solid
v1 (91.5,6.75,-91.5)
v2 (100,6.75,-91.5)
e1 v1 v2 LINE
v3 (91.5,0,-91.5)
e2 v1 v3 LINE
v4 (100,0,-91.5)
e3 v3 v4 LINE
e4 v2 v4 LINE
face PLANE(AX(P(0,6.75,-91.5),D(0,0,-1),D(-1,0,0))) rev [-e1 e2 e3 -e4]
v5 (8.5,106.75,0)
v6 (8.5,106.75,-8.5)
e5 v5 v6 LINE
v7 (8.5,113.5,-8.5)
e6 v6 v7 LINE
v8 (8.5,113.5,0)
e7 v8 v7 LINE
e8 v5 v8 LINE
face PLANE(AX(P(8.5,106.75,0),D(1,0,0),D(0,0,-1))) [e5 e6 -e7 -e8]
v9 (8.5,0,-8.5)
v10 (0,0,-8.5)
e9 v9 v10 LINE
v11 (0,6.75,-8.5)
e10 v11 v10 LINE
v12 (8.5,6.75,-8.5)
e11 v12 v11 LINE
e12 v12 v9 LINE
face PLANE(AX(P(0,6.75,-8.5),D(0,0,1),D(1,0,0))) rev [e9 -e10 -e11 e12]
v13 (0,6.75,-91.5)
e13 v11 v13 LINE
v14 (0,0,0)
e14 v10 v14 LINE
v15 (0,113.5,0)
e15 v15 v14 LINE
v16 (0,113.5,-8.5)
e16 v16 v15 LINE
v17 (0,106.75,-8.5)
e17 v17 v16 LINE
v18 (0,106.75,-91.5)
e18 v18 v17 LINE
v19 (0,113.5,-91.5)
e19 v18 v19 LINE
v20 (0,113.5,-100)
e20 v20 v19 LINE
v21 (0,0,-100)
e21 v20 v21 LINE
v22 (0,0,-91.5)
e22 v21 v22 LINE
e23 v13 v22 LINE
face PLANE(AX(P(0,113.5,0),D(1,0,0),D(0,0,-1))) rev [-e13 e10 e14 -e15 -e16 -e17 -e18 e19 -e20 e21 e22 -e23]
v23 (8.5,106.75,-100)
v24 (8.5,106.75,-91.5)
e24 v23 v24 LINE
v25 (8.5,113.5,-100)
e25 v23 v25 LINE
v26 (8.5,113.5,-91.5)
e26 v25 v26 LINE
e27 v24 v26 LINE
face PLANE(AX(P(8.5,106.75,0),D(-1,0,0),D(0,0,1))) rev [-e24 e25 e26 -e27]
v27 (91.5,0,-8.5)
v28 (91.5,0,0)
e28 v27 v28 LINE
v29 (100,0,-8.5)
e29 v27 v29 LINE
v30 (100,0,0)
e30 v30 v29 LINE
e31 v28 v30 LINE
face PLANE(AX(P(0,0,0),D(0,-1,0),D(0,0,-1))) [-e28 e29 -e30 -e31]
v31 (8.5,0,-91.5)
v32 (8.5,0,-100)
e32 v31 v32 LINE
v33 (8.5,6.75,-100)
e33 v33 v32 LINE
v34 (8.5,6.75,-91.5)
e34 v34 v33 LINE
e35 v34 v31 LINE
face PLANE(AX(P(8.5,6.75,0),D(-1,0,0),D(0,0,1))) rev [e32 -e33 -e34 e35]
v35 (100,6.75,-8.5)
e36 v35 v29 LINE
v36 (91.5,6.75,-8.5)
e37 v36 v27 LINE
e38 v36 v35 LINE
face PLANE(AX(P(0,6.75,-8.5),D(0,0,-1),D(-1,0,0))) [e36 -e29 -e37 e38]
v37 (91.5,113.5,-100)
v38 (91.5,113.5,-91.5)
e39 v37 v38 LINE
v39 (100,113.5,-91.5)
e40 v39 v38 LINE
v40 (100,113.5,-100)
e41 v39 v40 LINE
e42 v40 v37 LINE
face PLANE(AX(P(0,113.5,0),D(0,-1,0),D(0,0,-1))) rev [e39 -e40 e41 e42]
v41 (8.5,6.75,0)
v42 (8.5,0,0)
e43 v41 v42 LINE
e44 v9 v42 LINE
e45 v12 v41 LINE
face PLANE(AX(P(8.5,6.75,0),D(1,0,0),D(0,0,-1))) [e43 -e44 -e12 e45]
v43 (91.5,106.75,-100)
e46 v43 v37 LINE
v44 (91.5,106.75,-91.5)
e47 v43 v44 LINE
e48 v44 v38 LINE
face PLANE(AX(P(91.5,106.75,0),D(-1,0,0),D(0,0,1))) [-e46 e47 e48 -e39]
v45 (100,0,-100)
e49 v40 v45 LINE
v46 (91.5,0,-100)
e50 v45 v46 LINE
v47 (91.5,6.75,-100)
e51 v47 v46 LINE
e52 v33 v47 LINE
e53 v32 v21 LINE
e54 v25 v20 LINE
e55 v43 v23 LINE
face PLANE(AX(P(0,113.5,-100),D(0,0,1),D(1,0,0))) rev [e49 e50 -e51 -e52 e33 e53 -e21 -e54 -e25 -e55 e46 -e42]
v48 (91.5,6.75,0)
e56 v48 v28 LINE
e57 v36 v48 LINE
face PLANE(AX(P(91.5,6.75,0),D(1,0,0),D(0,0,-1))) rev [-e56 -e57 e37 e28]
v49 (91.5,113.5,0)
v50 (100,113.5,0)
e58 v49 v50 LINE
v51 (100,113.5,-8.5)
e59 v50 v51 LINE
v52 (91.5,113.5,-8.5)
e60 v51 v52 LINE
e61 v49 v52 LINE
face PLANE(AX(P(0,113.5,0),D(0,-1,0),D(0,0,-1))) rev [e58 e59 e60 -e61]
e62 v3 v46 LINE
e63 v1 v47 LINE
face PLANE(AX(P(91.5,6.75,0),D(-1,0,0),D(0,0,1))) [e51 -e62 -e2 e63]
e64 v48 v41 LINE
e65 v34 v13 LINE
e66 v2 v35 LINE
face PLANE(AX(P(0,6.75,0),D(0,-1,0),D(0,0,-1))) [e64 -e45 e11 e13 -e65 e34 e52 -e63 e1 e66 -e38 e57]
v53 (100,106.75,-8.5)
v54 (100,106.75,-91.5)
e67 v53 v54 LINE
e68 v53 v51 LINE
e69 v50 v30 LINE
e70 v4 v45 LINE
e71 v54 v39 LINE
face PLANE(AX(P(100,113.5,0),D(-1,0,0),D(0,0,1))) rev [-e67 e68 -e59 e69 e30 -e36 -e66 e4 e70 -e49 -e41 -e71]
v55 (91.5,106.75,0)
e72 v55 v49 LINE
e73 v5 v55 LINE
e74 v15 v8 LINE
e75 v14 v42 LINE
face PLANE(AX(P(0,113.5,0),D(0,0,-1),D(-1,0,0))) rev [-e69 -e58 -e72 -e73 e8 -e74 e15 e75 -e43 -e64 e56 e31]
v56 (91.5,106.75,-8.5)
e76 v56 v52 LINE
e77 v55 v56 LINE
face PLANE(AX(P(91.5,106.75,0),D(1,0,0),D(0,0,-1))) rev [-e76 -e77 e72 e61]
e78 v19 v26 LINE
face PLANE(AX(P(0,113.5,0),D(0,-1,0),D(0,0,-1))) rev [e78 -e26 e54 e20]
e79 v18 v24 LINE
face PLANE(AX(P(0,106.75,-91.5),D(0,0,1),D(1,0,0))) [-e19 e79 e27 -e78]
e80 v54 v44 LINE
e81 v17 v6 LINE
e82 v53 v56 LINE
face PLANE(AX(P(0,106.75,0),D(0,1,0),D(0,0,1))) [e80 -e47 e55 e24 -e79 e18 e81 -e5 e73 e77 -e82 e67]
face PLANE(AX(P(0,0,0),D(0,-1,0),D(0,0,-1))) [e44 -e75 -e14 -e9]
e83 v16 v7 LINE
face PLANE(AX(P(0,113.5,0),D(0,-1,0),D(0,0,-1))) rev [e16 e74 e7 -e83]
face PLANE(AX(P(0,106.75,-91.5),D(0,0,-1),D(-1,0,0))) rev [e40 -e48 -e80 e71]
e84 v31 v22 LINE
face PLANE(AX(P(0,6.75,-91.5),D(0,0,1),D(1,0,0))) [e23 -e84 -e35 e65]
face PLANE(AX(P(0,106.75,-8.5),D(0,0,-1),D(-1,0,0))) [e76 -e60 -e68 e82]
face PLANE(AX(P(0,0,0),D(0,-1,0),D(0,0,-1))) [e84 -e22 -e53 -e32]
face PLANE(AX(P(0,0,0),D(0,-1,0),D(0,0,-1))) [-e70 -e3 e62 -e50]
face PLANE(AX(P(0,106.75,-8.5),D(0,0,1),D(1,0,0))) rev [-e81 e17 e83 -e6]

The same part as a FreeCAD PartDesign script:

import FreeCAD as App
import Part
import Sketcher
from FreeCAD import Vector
Q = App.Units.Quantity


def add_polygon(sketch, points):
    """Adds a closed chain of lines whose ends are joined by coincident constraints."""
    first, n = sketch.GeometryCount, len(points)
    for a, b in zip(points, points[1:] + points[:1]):
        sketch.addGeometry(Part.LineSegment(App.Vector(*a, 0), App.Vector(*b, 0)), False)
    for i in range(n):
        sketch.addConstraint(Sketcher.Constraint("Coincident", first + i, 2, first + (i + 1) % n, 1))

doc = App.newDocument("Part")
body = doc.addObject("PartDesign::Body", "Body")

# Sketch on XZ plane
sketch1 = doc.addObject("Sketcher::SketchObject", "Sketch")
body.addObject(sketch1)
sketch1.AttachmentSupport = (doc.XZ_Plane, [""])
sketch1.MapMode = "FlatFace"
add_polygon(sketch1, [(0, -100), (0, 0), (100, 0), (100, -100)])  # lines 0-3
sketch1.addConstraint(Sketcher.Constraint("Vertical", 0))
sketch1.addConstraint(Sketcher.Constraint("Horizontal", 1))
sketch1.addConstraint(Sketcher.Constraint("Vertical", 2))
sketch1.addConstraint(Sketcher.Constraint("Horizontal", 3))
sketch1.addConstraint(Sketcher.Constraint("Coincident", 0, 2, -1, 1))
sketch1.addConstraint(Sketcher.Constraint("Equal", 3, 0))
sketch1.addConstraint(Sketcher.Constraint("DistanceX", 1, 1, 1, 2, Q("100 mm")))
pad1 = doc.addObject("PartDesign::Pad", "Pad")
body.addObject(pad1)
pad1.Profile = sketch1
pad1.Length = 113.5
pad1.Reversed = True

# Sketch on XZ plane
sketch2 = doc.addObject("Sketcher::SketchObject", "Sketch001")
body.addObject(sketch2)
sketch2.AttachmentSupport = (doc.XZ_Plane, [""])
sketch2.MapMode = "FlatFace"
sketch2.AttachmentOffset = App.Placement(Vector(0, 0, -113.5), App.Rotation())
add_polygon(sketch2, [(91.5, -100), (8.5, -100), (8.5, -91.5), (0, -91.5), (0, -8.5), (8.5, -8.5), (8.5, 0), (91.5, 0), (91.5, -8.5), (100, -8.5), (100, -91.5), (91.5, -91.5)])  # lines 0-11
sketch2.addConstraint(Sketcher.Constraint("Horizontal", 0))
sketch2.addConstraint(Sketcher.Constraint("Vertical", 1))
sketch2.addConstraint(Sketcher.Constraint("Horizontal", 2))
sketch2.addConstraint(Sketcher.Constraint("Vertical", 3))
sketch2.addConstraint(Sketcher.Constraint("Horizontal", 4))
sketch2.addConstraint(Sketcher.Constraint("Vertical", 5))
sketch2.addConstraint(Sketcher.Constraint("Horizontal", 6))
sketch2.addConstraint(Sketcher.Constraint("Vertical", 7))
sketch2.addConstraint(Sketcher.Constraint("Horizontal", 8))
sketch2.addConstraint(Sketcher.Constraint("Vertical", 9))
sketch2.addConstraint(Sketcher.Constraint("Horizontal", 10))
sketch2.addConstraint(Sketcher.Constraint("Vertical", 11))
sketch2.addConstraint(Sketcher.Constraint("PointOnObject", 2, 2, -2))
sketch2.addConstraint(Sketcher.Constraint("PointOnObject", 5, 2, -1))
sketch2.addConstraint(Sketcher.Constraint("Horizontal", 4, 2, 7, 2))
sketch2.addConstraint(Sketcher.Constraint("Horizontal", 2, 2, 9, 2))
sketch2.addConstraint(Sketcher.Constraint("Vertical", 1, 2, 4, 2))
sketch2.addConstraint(Sketcher.Constraint("Vertical", 7, 2, 10, 2))
sketch2.addConstraint(Sketcher.Constraint("Equal", 4, 8))
sketch2.addConstraint(Sketcher.Constraint("Equal", 10, 1))
sketch2.addConstraint(Sketcher.Constraint("Equal", 6, 3))
sketch2.addConstraint(Sketcher.Constraint("Equal", 1, 5))
sketch2.addConstraint(Sketcher.Constraint("DistanceX", 0, 2, 0, 1, Q("83 mm")))
sketch2.addConstraint(Sketcher.Constraint("DistanceX", 2, 2, 2, 1, Q("8.5 mm")))
pocket1 = doc.addObject("PartDesign::Pocket", "Pocket")
body.addObject(pocket1)
pocket1.Profile = sketch2
pocket1.Length = 6.75
pocket1.Reversed = True

# Sketch on XZ plane
sketch3 = doc.addObject("Sketcher::SketchObject", "Sketch002")
body.addObject(sketch3)
sketch3.AttachmentSupport = (doc.XZ_Plane, [""])
sketch3.MapMode = "FlatFace"
add_polygon(sketch3, [(91.5, -100), (8.5, -100), (8.5, -91.5), (0, -91.5), (0, -8.5), (8.5, -8.5), (8.5, 0), (91.5, 0), (91.5, -8.5), (100, -8.5), (100, -91.5), (91.5, -91.5)])  # lines 0-11
sketch3.addConstraint(Sketcher.Constraint("Horizontal", 0))
sketch3.addConstraint(Sketcher.Constraint("Vertical", 1))
sketch3.addConstraint(Sketcher.Constraint("Horizontal", 2))
sketch3.addConstraint(Sketcher.Constraint("Vertical", 3))
sketch3.addConstraint(Sketcher.Constraint("Horizontal", 4))
sketch3.addConstraint(Sketcher.Constraint("Vertical", 5))
sketch3.addConstraint(Sketcher.Constraint("Horizontal", 6))
sketch3.addConstraint(Sketcher.Constraint("Vertical", 7))
sketch3.addConstraint(Sketcher.Constraint("Horizontal", 8))
sketch3.addConstraint(Sketcher.Constraint("Vertical", 9))
sketch3.addConstraint(Sketcher.Constraint("Horizontal", 10))
sketch3.addConstraint(Sketcher.Constraint("Vertical", 11))
sketch3.addConstraint(Sketcher.Constraint("PointOnObject", 2, 2, -2))
sketch3.addConstraint(Sketcher.Constraint("PointOnObject", 5, 2, -1))
sketch3.addConstraint(Sketcher.Constraint("Horizontal", 4, 2, 7, 2))
sketch3.addConstraint(Sketcher.Constraint("Horizontal", 2, 2, 9, 2))
sketch3.addConstraint(Sketcher.Constraint("Vertical", 1, 2, 4, 2))
sketch3.addConstraint(Sketcher.Constraint("Vertical", 7, 2, 10, 2))
sketch3.addConstraint(Sketcher.Constraint("Equal", 4, 8))
sketch3.addConstraint(Sketcher.Constraint("Equal", 10, 1))
sketch3.addConstraint(Sketcher.Constraint("Equal", 6, 3))
sketch3.addConstraint(Sketcher.Constraint("Equal", 1, 5))
sketch3.addConstraint(Sketcher.Constraint("DistanceX", 0, 2, 0, 1, Q("83 mm")))
sketch3.addConstraint(Sketcher.Constraint("DistanceX", 2, 2, 2, 1, Q("8.5 mm")))
pocket2 = doc.addObject("PartDesign::Pocket", "Pocket001")
body.addObject(pocket2)
pocket2.Profile = sketch3
pocket2.Length = 6.75

doc.recompute()
